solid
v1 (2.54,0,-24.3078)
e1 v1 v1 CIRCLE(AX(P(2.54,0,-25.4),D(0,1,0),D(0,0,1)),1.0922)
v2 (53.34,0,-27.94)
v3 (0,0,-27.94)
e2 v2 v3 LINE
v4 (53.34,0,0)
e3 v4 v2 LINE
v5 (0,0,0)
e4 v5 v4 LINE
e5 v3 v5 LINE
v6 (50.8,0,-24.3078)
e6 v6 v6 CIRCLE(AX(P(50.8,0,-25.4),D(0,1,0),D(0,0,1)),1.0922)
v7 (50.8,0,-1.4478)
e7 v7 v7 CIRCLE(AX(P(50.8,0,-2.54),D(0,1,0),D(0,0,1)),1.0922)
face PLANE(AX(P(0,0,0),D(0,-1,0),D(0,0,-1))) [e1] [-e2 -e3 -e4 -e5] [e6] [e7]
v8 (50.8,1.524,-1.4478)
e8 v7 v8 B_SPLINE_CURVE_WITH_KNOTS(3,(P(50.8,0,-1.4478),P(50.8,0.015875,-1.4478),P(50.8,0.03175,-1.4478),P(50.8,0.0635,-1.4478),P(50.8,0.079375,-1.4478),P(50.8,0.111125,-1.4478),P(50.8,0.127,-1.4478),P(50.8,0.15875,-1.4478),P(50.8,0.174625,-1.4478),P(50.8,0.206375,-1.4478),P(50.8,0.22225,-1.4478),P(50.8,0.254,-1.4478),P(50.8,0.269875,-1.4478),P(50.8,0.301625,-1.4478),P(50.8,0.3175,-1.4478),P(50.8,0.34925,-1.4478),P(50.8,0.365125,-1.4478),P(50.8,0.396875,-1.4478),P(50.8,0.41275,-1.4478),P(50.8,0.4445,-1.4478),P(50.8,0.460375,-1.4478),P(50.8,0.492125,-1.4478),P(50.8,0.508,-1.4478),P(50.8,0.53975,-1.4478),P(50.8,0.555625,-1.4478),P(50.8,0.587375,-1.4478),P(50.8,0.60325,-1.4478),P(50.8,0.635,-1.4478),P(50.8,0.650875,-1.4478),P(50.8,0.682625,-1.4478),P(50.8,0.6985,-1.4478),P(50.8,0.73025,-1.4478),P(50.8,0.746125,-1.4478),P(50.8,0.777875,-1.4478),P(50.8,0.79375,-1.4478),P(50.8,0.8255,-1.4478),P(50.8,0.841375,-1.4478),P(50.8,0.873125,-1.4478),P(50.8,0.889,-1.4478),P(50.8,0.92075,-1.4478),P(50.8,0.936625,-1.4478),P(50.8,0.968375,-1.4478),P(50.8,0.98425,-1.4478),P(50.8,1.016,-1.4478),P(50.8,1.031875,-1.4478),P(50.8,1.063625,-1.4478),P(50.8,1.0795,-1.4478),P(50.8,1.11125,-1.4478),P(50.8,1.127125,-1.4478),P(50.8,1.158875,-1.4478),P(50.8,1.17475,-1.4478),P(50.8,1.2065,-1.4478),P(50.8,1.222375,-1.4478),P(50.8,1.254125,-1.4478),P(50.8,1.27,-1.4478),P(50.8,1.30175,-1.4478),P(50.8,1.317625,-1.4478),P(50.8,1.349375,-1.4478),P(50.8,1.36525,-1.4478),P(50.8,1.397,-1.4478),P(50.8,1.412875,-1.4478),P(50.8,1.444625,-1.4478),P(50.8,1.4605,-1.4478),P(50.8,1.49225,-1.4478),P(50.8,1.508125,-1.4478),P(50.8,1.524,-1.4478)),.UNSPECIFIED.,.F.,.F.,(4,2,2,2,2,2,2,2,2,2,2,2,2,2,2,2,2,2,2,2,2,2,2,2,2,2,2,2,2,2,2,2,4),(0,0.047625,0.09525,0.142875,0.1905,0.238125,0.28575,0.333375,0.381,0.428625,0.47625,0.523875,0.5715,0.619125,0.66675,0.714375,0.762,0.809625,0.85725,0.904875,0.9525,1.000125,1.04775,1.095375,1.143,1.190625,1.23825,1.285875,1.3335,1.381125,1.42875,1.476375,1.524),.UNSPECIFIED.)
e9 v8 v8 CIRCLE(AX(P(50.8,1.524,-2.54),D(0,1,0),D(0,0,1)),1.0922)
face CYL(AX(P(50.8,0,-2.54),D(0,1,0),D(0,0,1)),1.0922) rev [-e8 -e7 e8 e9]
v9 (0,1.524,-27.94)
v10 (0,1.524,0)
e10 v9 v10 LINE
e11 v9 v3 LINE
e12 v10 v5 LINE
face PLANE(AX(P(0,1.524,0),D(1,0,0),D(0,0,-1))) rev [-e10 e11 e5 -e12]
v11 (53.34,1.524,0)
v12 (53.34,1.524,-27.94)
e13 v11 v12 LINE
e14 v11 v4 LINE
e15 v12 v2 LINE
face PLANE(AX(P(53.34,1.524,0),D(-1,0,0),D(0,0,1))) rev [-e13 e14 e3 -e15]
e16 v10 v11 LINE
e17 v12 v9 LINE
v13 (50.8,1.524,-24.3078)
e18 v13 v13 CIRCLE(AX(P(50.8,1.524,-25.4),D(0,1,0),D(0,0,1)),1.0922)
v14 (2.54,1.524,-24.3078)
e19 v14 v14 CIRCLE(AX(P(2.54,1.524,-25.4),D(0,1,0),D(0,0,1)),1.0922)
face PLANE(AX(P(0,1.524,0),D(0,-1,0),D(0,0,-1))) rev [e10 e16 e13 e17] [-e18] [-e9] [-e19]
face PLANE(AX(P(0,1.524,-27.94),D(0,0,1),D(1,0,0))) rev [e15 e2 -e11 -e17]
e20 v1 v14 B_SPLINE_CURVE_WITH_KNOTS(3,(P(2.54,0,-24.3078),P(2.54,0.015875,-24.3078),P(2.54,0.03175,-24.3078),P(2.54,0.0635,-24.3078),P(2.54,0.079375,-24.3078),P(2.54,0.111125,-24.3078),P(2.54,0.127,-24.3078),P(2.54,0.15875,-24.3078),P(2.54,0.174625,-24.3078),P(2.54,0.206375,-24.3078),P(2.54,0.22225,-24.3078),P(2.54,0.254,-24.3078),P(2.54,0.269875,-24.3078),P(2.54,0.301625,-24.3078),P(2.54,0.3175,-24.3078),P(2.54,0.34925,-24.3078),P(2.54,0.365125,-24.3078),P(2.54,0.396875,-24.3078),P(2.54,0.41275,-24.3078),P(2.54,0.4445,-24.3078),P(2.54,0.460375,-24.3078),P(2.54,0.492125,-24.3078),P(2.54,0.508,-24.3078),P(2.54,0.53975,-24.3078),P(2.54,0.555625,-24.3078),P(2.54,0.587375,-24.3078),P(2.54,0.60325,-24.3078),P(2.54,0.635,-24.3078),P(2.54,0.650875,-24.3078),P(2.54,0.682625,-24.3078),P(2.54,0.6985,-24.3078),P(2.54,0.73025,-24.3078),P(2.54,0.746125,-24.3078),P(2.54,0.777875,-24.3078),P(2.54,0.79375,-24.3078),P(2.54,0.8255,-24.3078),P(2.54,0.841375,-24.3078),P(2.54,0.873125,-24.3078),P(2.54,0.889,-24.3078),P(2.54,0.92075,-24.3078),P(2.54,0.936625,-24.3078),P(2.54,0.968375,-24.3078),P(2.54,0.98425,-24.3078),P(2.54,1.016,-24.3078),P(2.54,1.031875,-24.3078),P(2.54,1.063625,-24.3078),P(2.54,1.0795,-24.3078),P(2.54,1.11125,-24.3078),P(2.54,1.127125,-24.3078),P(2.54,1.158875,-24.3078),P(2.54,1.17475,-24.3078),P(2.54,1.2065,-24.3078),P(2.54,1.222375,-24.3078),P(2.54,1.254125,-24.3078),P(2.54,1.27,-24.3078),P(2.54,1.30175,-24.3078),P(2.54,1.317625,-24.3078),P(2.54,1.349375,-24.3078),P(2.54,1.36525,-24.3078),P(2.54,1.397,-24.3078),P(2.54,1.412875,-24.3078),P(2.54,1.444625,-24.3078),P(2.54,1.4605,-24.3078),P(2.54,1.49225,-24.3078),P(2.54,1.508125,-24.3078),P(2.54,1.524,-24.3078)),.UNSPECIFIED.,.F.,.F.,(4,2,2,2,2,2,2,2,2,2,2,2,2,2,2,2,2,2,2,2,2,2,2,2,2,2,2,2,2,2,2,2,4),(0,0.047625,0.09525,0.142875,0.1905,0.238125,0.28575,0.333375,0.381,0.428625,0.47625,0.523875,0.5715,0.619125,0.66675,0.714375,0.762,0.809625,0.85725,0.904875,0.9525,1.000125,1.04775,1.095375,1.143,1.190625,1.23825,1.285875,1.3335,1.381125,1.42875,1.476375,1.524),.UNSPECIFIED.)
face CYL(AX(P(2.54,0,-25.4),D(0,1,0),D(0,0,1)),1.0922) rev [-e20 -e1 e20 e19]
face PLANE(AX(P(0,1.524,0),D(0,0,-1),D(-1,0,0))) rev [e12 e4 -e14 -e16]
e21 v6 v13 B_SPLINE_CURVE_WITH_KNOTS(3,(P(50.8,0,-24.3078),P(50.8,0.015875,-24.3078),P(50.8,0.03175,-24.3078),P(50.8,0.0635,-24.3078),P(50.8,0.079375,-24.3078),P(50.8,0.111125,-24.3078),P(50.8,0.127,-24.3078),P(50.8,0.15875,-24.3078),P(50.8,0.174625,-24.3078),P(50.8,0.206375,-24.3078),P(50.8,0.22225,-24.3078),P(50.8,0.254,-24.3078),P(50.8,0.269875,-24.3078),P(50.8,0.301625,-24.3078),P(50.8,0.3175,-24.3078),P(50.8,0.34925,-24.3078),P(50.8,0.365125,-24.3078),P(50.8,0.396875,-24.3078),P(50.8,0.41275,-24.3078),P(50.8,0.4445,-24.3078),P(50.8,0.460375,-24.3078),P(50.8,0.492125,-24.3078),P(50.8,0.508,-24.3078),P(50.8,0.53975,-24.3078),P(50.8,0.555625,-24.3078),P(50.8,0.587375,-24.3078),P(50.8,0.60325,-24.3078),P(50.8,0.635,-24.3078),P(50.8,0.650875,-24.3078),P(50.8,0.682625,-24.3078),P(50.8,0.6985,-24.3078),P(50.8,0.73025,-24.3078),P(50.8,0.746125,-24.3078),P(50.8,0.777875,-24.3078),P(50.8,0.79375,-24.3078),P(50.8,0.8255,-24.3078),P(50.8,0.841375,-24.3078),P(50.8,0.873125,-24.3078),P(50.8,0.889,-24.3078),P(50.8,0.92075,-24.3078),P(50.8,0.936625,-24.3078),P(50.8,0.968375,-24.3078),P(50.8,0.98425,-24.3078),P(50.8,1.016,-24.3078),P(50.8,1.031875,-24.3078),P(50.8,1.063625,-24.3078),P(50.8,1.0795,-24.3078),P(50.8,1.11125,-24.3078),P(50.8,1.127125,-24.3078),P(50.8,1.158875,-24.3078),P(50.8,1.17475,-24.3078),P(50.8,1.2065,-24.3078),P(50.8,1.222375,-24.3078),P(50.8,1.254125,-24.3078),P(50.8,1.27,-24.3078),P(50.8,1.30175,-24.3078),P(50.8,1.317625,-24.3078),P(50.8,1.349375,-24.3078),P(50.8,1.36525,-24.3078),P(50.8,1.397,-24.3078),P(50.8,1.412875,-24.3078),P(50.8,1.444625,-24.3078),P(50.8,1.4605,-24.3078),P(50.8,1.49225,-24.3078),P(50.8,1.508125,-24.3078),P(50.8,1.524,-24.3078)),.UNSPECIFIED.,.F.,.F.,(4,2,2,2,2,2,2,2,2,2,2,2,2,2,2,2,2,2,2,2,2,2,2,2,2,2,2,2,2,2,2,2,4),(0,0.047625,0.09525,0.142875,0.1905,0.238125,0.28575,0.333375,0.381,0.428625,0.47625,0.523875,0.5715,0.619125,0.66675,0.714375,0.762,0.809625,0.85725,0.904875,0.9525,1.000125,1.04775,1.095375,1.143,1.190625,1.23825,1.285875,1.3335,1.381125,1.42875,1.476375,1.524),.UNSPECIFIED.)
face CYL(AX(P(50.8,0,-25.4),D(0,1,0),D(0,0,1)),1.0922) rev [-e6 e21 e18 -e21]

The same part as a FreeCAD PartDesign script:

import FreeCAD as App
import Part
import Sketcher

V = App.Vector
Q = App.Units.Quantity


def add_polygon(sketch, points):
    """Adds a closed chain of lines whose ends are joined by coincident constraints."""
    first, n = sketch.GeometryCount, len(points)
    for a, b in zip(points, points[1:] + points[:1]):
        sketch.addGeometry(Part.LineSegment(App.Vector(*a, 0), App.Vector(*b, 0)), False)
    for i in range(n):
        sketch.addConstraint(Sketcher.Constraint("Coincident", first + i, 2, first + (i + 1) % n, 1))

doc = App.newDocument("Part")
body = doc.addObject("PartDesign::Body", "Body")

sketch1 = doc.addObject("Sketcher::SketchObject", "Sketch")
body.addObject(sketch1)
sketch1.AttachmentSupport = (doc.XZ_Plane, [""])
sketch1.MapMode = "FlatFace"
add_polygon(sketch1, [(0, -28), (0, 0), (53, 0), (53, -28)])
sketch1.addConstraint([
    Sketcher.Constraint("Vertical", 0),
    Sketcher.Constraint("Horizontal", 1),
    Sketcher.Constraint("Vertical", 2),
    Sketcher.Constraint("Horizontal", 3),
    Sketcher.Constraint("Coincident", 0, 2, -1, 1),
    Sketcher.Constraint("DistanceX", 1, 1, 1, 2, Q("2.1 in")),
    Sketcher.Constraint("DistanceY", 0, 1, 0, 2, Q("1.1 in")),
])
pad1 = doc.addObject("PartDesign::Pad", "Pad")
body.addObject(pad1)
pad1.Profile = sketch1
pad1.Length = Q("0.06 in")
pad1.Reversed = True

sketch2 = doc.addObject("Sketcher::SketchObject", "Sketch001")
body.addObject(sketch2)
sketch2.AttachmentSupport = (doc.XZ_Plane, [""])
sketch2.MapMode = "FlatFace"
sketch2.AttachmentOffset = App.Placement(V(0, 0, -0.06 * 25.4), App.Rotation())
sketch2.addGeometry([
    Part.Circle(V(2.5, -25.4, 0), V(0, 0, 1), 1.1),
    Part.Circle(V(50.8, -25.4, 0), V(0, 0, 1), 1.1),
    Part.Circle(V(50.8, -2.5, 0), V(0, 0, 1), 1.1),
], False)
sketch2.addConstraint([
    Sketcher.Constraint("Equal", 0, 1),
    Sketcher.Constraint("Equal", 1, 2),
    Sketcher.Constraint("Horizontal", 0, 3, 1, 3),
    Sketcher.Constraint("Vertical", 1, 3, 2, 3),
    Sketcher.Constraint("Diameter", 0, Q("0.086 in")),
    Sketcher.Constraint("DistanceY", 0, 3, -1, 1, Q("1 in")),
    Sketcher.Constraint("DistanceX", -1, 1, 1, 3, Q("2 in")),
    Sketcher.Constraint("DistanceX", -1, 1, 0, 3, Q("0.1 in")),
    Sketcher.Constraint("DistanceY", 2, 3, -1, 1, Q("0.1 in")),
])
pocket1 = doc.addObject("PartDesign::Pocket", "Pocket")
body.addObject(pocket1)
pocket1.Profile = sketch2
pocket1.Length = Q("0.06 in")
pocket1.Reversed = True

doc.recompute()
